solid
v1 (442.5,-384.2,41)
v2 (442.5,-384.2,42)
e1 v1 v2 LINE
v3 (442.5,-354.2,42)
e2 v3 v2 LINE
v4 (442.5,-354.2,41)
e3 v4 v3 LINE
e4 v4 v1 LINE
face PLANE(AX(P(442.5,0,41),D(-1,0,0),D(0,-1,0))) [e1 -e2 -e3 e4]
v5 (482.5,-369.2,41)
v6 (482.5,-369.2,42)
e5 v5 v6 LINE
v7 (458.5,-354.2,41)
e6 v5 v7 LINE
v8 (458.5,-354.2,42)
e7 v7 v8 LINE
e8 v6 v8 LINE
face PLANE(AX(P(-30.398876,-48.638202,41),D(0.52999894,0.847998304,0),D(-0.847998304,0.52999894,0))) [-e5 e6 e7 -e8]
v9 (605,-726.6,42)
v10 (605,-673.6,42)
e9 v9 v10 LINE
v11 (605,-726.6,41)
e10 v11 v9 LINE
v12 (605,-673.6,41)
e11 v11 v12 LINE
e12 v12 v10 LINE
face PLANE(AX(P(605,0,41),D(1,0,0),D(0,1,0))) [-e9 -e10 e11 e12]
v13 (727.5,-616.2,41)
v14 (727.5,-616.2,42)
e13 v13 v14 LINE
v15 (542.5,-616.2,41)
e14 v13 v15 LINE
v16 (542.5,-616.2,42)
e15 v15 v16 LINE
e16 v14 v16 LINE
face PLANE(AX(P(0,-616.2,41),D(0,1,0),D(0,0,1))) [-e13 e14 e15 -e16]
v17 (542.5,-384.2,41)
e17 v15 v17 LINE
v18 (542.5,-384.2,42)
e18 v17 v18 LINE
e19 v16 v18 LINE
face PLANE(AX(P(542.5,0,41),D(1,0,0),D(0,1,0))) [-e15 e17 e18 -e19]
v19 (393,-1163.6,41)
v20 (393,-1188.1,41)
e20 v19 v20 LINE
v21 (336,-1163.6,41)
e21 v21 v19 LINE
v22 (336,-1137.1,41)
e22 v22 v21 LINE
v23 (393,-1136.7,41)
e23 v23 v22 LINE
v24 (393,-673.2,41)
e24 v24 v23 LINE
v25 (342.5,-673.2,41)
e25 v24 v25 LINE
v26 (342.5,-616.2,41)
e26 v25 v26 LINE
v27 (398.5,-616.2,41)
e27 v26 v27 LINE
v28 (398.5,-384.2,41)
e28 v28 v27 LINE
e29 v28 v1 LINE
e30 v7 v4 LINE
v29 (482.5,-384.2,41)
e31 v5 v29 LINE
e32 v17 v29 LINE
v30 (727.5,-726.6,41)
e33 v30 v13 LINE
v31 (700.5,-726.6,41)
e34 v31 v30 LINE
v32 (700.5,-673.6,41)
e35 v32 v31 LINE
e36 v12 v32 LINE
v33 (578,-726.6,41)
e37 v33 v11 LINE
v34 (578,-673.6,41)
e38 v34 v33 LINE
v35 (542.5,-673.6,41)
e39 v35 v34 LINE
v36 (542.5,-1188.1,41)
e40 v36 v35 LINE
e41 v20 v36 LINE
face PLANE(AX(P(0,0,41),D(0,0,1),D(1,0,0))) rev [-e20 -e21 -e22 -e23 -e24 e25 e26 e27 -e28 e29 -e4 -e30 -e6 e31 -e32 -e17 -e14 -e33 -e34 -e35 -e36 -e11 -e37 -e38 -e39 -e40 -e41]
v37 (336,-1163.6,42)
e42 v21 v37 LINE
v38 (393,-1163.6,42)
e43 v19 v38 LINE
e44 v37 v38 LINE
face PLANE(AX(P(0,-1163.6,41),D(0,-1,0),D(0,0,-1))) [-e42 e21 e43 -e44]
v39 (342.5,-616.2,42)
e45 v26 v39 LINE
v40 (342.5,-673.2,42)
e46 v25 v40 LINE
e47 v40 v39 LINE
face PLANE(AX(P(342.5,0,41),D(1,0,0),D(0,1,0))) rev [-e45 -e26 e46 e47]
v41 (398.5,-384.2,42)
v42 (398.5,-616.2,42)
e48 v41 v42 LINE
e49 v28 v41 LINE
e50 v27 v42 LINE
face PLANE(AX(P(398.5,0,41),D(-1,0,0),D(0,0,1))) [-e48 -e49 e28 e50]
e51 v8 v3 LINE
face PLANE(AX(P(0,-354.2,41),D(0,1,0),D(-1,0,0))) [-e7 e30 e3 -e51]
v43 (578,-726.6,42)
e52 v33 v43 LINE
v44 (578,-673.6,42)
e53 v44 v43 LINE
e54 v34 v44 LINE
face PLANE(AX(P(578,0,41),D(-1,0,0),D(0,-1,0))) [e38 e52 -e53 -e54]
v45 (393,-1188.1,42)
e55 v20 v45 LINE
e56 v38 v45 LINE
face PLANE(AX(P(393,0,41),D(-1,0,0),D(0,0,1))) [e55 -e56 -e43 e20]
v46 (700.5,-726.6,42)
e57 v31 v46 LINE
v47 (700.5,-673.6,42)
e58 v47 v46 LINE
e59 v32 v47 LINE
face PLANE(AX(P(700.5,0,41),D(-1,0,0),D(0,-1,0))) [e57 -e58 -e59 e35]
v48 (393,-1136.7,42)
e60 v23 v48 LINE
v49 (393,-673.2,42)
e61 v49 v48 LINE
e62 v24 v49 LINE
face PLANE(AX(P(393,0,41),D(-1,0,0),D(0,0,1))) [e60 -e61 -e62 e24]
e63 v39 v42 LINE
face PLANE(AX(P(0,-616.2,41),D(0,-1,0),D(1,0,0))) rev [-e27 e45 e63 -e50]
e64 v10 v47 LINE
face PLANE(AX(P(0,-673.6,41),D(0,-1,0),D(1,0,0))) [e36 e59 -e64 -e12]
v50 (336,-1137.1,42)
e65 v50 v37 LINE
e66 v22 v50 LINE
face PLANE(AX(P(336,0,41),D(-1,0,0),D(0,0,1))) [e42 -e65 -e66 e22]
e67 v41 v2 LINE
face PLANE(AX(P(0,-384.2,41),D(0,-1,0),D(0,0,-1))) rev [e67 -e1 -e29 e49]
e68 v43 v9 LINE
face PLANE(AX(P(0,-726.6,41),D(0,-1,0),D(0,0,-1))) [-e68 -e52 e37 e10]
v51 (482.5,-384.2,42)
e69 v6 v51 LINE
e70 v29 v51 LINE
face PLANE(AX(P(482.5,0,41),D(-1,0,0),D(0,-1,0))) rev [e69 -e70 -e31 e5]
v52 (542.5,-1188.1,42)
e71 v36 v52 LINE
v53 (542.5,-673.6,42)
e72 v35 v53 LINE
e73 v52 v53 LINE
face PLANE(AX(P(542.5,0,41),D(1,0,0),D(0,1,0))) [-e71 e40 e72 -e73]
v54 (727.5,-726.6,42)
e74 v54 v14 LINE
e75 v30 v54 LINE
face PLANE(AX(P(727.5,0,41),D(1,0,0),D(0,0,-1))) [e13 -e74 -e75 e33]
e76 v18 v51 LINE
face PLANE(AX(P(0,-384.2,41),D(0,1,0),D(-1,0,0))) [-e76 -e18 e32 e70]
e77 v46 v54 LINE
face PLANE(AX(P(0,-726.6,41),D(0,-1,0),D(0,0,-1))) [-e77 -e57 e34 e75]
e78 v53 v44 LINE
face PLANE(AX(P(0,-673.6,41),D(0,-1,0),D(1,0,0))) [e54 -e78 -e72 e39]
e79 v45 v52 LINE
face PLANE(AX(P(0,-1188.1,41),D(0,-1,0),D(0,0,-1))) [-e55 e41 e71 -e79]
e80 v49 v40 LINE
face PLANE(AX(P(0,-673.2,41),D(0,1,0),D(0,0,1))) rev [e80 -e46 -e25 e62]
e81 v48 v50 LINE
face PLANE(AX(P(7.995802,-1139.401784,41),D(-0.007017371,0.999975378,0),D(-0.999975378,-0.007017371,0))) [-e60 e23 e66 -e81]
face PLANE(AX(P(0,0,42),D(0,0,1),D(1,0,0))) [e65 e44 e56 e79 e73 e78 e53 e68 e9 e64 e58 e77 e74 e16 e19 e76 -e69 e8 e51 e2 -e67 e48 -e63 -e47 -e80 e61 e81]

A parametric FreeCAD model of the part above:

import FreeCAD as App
import Part
import Sketcher
from FreeCAD import Vector

doc = App.newDocument("Part")
params = doc.addObject("Spreadsheet::Sheet", "Params")
for row, (alias, value) in enumerate([
    ("sketch1_width", "42 mm"),
    ("sketch1_width2", "16 mm"),
    ("sketch1_width3", "14 mm"),
    ("sketch1_width4", "56 mm"),
    ("sketch1_width5", "57 mm"),
    ("pad1_length", "1 mm"),
    ("sketch2_width", "16 mm"),
    ("sketch2_height", "30 mm"),
    ("pocket1_length", "10 mm"),
], start=1):
    params.set(f"A{row}", alias)
    params.set(f"B{row}", "=" + value)
    params.setAlias(f"B{row}", alias)

body = doc.addObject("PartDesign::Body", "Body")

# Sketch on XY plane
sketch1 = body.newObject("Sketcher::SketchObject", "Sketch")
sketch1.AttachmentSupport = (doc.getObject("XY_Plane"), [""])
sketch1.MapMode = "FlatFace"
sketch1.AttachmentOffset = App.Placement(Vector(0, 0, 42), App.Rotation())
sketch1.addGeometry([
    Part.LineSegment(Vector(442.5, -354.2, 0), Vector(442.5, -384.2, 0)),  # 0
    Part.LineSegment(Vector(442.5, -384.2, 0), Vector(400.5, -384.2, 0)),  # 1
    Part.LineSegment(Vector(400.5, -384.2, 0), Vector(400.5, -354.2, 0)),  # 2
    Part.LineSegment(Vector(400.5, -354.2, 0), Vector(384.5, -354.2, 0)),  # 3
    Part.LineSegment(Vector(384.5, -354.2, 0), Vector(384.5, -384.2, 0)),  # 4
    Part.LineSegment(Vector(384.5, -384.2, 0), Vector(398.5, -384.2, 0)),  # 5
    Part.LineSegment(Vector(398.5, -384.2, 0), Vector(398.5, -616.2, 0)),  # 6
    Part.LineSegment(Vector(398.5, -616.2, 0), Vector(342.5, -616.2, 0)),  # 7
    Part.LineSegment(Vector(342.5, -616.2, 0), Vector(342.5, -673.2, 0)),  # 8
    Part.LineSegment(Vector(342.5, -673.2, 0), Vector(393, -673.2, 0)),  # 9
    Part.LineSegment(Vector(393, -673.2, 0), Vector(393, -1136.7, 0)),  # 10
    Part.LineSegment(Vector(393, -1136.7, 0), Vector(336, -1137.1, 0)),  # 11
    Part.LineSegment(Vector(336, -1137.1, 0), Vector(336, -1163.6, 0)),  # 12
    Part.LineSegment(Vector(336, -1163.6, 0), Vector(393, -1163.6, 0)),  # 13
    Part.LineSegment(Vector(393, -1163.6, 0), Vector(393, -1188.1, 0)),  # 14
    Part.LineSegment(Vector(393, -1188.1, 0), Vector(542.5, -1188.1, 0)),  # 15
    Part.LineSegment(Vector(542.5, -1188.1, 0), Vector(542.5, -673.6, 0)),  # 16
    Part.LineSegment(Vector(542.5, -673.6, 0), Vector(578, -673.6, 0)),  # 17
    Part.LineSegment(Vector(578, -673.6, 0), Vector(578, -726.6, 0)),  # 18
    Part.LineSegment(Vector(578, -726.6, 0), Vector(605, -726.6, 0)),  # 19
    Part.LineSegment(Vector(605, -726.6, 0), Vector(605, -673.6, 0)),  # 20
    Part.LineSegment(Vector(605, -673.6, 0), Vector(700.5, -673.6, 0)),  # 21
    Part.LineSegment(Vector(700.5, -673.6, 0), Vector(700.5, -726.6, 0)),  # 22
    Part.LineSegment(Vector(700.5, -726.6, 0), Vector(727.5, -726.6, 0)),  # 23
    Part.LineSegment(Vector(727.5, -726.6, 0), Vector(727.5, -616.2, 0)),  # 24
    Part.LineSegment(Vector(727.5, -616.2, 0), Vector(542.5, -616.2, 0)),  # 25
    Part.LineSegment(Vector(542.5, -616.2, 0), Vector(542.5, -384.2, 0)),  # 26
    Part.LineSegment(Vector(542.5, -384.2, 0), Vector(482.5, -384.2, 0)),  # 27
    Part.LineSegment(Vector(482.5, -384.2, 0), Vector(482.5, -369.2, 0)),  # 28
    Part.LineSegment(Vector(482.5, -369.2, 0), Vector(458.5, -354.2, 0)),  # 29
    Part.LineSegment(Vector(458.5, -354.2, 0), Vector(442.5, -354.2, 0)),  # 30
], False)
sketch1.addConstraint([
    Sketcher.Constraint("Coincident", 0, 2, 1, 1),
    Sketcher.Constraint("Coincident", 1, 2, 2, 1),
    Sketcher.Constraint("Coincident", 2, 2, 3, 1),
    Sketcher.Constraint("Coincident", 3, 2, 4, 1),
    Sketcher.Constraint("Coincident", 4, 2, 5, 1),
    Sketcher.Constraint("Coincident", 5, 2, 6, 1),
    Sketcher.Constraint("Coincident", 6, 2, 7, 1),
    Sketcher.Constraint("Coincident", 7, 2, 8, 1),
    Sketcher.Constraint("Coincident", 8, 2, 9, 1),
    Sketcher.Constraint("Coincident", 9, 2, 10, 1),
    Sketcher.Constraint("Coincident", 10, 2, 11, 1),
    Sketcher.Constraint("Coincident", 11, 2, 12, 1),
    Sketcher.Constraint("Coincident", 12, 2, 13, 1),
    Sketcher.Constraint("Coincident", 13, 2, 14, 1),
    Sketcher.Constraint("Coincident", 14, 2, 15, 1),
    Sketcher.Constraint("Coincident", 15, 2, 16, 1),
    Sketcher.Constraint("Coincident", 16, 2, 17, 1),
    Sketcher.Constraint("Coincident", 17, 2, 18, 1),
    Sketcher.Constraint("Coincident", 18, 2, 19, 1),
    Sketcher.Constraint("Coincident", 19, 2, 20, 1),
    Sketcher.Constraint("Coincident", 20, 2, 21, 1),
    Sketcher.Constraint("Coincident", 21, 2, 22, 1),
    Sketcher.Constraint("Coincident", 22, 2, 23, 1),
    Sketcher.Constraint("Coincident", 23, 2, 24, 1),
    Sketcher.Constraint("Coincident", 24, 2, 25, 1),
    Sketcher.Constraint("Coincident", 25, 2, 26, 1),
    Sketcher.Constraint("Coincident", 26, 2, 27, 1),
    Sketcher.Constraint("Coincident", 27, 2, 28, 1),
    Sketcher.Constraint("Coincident", 28, 2, 29, 1),
    Sketcher.Constraint("Coincident", 29, 2, 30, 1),
    Sketcher.Constraint("Coincident", 30, 2, 0, 1),
    Sketcher.Constraint("Vertical", 0),
    Sketcher.Constraint("Horizontal", 1),
    Sketcher.Constraint("Vertical", 2),
    Sketcher.Constraint("Horizontal", 3),
    Sketcher.Constraint("Vertical", 4),
    Sketcher.Constraint("Horizontal", 5),
    Sketcher.Constraint("Vertical", 6),
    Sketcher.Constraint("Horizontal", 7),
    Sketcher.Constraint("Vertical", 8),
    Sketcher.Constraint("Horizontal", 9),
    Sketcher.Constraint("Vertical", 10),
    Sketcher.Constraint("Vertical", 12),
    Sketcher.Constraint("Horizontal", 13),
    Sketcher.Constraint("Vertical", 14),
    Sketcher.Constraint("Horizontal", 15),
    Sketcher.Constraint("Vertical", 16),
    Sketcher.Constraint("Horizontal", 17),
    Sketcher.Constraint("Vertical", 18),
    Sketcher.Constraint("Horizontal", 19),
    Sketcher.Constraint("Vertical", 20),
    Sketcher.Constraint("Horizontal", 21),
    Sketcher.Constraint("Vertical", 22),
    Sketcher.Constraint("Horizontal", 23),
    Sketcher.Constraint("Vertical", 24),
    Sketcher.Constraint("Horizontal", 25),
    Sketcher.Constraint("Vertical", 26),
    Sketcher.Constraint("Horizontal", 27),
    Sketcher.Constraint("Vertical", 28),
    Sketcher.Constraint("Horizontal", 30),
    Sketcher.Constraint("Horizontal", 1, 2, 4, 2),
    Sketcher.Constraint("Horizontal", 17, 2, 20, 2),
    Sketcher.Constraint("Horizontal", 19, 2, 22, 2),
    Sketcher.Constraint("Horizontal", 7, 2, 24, 2),
    Sketcher.Constraint("Horizontal", 5, 2, 26, 2),
    Sketcher.Constraint("Horizontal", 3, 2, 29, 2),
    Sketcher.Constraint("Vertical", 10, 2, 13, 2),
    Sketcher.Constraint("Vertical", 16, 2, 25, 2),
    Sketcher.Constraint("Equal", 19, 23),
    Sketcher.Constraint("Equal", 3, 30),
    Sketcher.Constraint("Equal", 13, 8),
    Sketcher.Constraint("DistanceX", 1, 2, 1, 1, 42.0),
    Sketcher.Constraint("DistanceX", 3, 2, 3, 1, 16.0),
    Sketcher.Constraint("DistanceX", 5, 1, 5, 2, 14.0),
    Sketcher.Constraint("DistanceX", 7, 2, 7, 1, 56.0),
    Sketcher.Constraint("DistanceX", 13, 1, 13, 2, 57.0),
    Sketcher.Constraint("DistanceX", 19, 1, 19, 2, 27.0),
    Sketcher.Constraint("DistanceX", 25, 2, 25, 1, 185.0),
    Sketcher.Constraint("DistanceX", 27, 2, 27, 1, 60.0),
    Sketcher.Constraint("DistanceY", 0, 2, 0, 1, 30.0),
    Sketcher.Constraint("DistanceY", 6, 2, 6, 1, 232.0),
    Sketcher.Constraint("DistanceY", 18, 2, 18, 1, 53.0),
    Sketcher.Constraint("DistanceY", 28, 1, 28, 2, 15.0),
    Sketcher.Constraint("DistanceX", 9, 1, 9, 2, 50.5),
    Sketcher.Constraint("DistanceX", 15, 1, 15, 2, 149.5),
    Sketcher.Constraint("DistanceX", 17, 1, 17, 2, 35.5),
    Sketcher.Constraint("DistanceY", 10, 2, 10, 1, 463.5),
    Sketcher.Constraint("DistanceY", 12, 2, 12, 1, 26.5),
    Sketcher.Constraint("DistanceY", 14, 2, 14, 1, 24.5),
    Sketcher.Constraint("DistanceY", 16, 1, 16, 2, 514.5),
    Sketcher.Constraint("DistanceY", 24, 1, 24, 2, 110.4),
    Sketcher.Constraint("DistanceX", -1, 1, 9, 2, 393.0),
    Sketcher.Constraint("DistanceY", 0, 2, -1, 1, 384.2),
])
sketch1.setExpression("Constraints[71]", "Params.sketch1_width")
sketch1.setExpression("Constraints[72]", "Params.sketch1_width2")
sketch1.setExpression("Constraints[73]", "Params.sketch1_width3")
sketch1.setExpression("Constraints[74]", "Params.sketch1_width4")
sketch1.setExpression("Constraints[75]", "Params.sketch1_width5")
pad1 = body.newObject("PartDesign::Pad", "Pad")
pad1.Profile = sketch1
pad1.setExpression("Length", "Params.pad1_length")
pad1.Reversed = True

# Sketch on XY plane
sketch2 = body.newObject("Sketcher::SketchObject", "Sketch001")
sketch2.AttachmentSupport = (doc.getObject("XY_Plane"), [""])
sketch2.MapMode = "FlatFace"
sketch2.AttachmentOffset = App.Placement(Vector(0, 0, 42), App.Rotation())
sketch2.addGeometry([
    Part.LineSegment(Vector(384.5, -354.2, 0), Vector(384.5, -384.2, 0)),
    Part.LineSegment(Vector(384.5, -384.2, 0), Vector(400.5, -384.2, 0)),
    Part.LineSegment(Vector(400.5, -384.2, 0), Vector(400.5, -354.2, 0)),
    Part.LineSegment(Vector(400.5, -354.2, 0), Vector(384.5, -354.2, 0)),
], False)
sketch2.addConstraint([
    Sketcher.Constraint("Coincident", 0, 2, 1, 1),
    Sketcher.Constraint("Coincident", 1, 2, 2, 1),
    Sketcher.Constraint("Coincident", 2, 2, 3, 1),
    Sketcher.Constraint("Coincident", 3, 2, 0, 1),
    Sketcher.Constraint("Vertical", 0),
    Sketcher.Constraint("Horizontal", 1),
    Sketcher.Constraint("Vertical", 2),
    Sketcher.Constraint("Horizontal", 3),
    Sketcher.Constraint("DistanceX", 1, 1, 1, 2, 16.0),
    Sketcher.Constraint("DistanceY", 0, 2, 0, 1, 30.0),
    Sketcher.Constraint("DistanceX", -1, 1, 0, 2, 384.5),
    Sketcher.Constraint("DistanceY", 0, 2, -1, 1, 384.2),
])
sketch2.setExpression("Constraints[8]", "Params.sketch2_width")
sketch2.setExpression("Constraints[9]", "Params.sketch2_height")
pocket1 = body.newObject("PartDesign::Pocket", "Pocket")
pocket1.Profile = sketch2
pocket1.setExpression("Length", "Params.pocket1_length")

doc.recompute()
